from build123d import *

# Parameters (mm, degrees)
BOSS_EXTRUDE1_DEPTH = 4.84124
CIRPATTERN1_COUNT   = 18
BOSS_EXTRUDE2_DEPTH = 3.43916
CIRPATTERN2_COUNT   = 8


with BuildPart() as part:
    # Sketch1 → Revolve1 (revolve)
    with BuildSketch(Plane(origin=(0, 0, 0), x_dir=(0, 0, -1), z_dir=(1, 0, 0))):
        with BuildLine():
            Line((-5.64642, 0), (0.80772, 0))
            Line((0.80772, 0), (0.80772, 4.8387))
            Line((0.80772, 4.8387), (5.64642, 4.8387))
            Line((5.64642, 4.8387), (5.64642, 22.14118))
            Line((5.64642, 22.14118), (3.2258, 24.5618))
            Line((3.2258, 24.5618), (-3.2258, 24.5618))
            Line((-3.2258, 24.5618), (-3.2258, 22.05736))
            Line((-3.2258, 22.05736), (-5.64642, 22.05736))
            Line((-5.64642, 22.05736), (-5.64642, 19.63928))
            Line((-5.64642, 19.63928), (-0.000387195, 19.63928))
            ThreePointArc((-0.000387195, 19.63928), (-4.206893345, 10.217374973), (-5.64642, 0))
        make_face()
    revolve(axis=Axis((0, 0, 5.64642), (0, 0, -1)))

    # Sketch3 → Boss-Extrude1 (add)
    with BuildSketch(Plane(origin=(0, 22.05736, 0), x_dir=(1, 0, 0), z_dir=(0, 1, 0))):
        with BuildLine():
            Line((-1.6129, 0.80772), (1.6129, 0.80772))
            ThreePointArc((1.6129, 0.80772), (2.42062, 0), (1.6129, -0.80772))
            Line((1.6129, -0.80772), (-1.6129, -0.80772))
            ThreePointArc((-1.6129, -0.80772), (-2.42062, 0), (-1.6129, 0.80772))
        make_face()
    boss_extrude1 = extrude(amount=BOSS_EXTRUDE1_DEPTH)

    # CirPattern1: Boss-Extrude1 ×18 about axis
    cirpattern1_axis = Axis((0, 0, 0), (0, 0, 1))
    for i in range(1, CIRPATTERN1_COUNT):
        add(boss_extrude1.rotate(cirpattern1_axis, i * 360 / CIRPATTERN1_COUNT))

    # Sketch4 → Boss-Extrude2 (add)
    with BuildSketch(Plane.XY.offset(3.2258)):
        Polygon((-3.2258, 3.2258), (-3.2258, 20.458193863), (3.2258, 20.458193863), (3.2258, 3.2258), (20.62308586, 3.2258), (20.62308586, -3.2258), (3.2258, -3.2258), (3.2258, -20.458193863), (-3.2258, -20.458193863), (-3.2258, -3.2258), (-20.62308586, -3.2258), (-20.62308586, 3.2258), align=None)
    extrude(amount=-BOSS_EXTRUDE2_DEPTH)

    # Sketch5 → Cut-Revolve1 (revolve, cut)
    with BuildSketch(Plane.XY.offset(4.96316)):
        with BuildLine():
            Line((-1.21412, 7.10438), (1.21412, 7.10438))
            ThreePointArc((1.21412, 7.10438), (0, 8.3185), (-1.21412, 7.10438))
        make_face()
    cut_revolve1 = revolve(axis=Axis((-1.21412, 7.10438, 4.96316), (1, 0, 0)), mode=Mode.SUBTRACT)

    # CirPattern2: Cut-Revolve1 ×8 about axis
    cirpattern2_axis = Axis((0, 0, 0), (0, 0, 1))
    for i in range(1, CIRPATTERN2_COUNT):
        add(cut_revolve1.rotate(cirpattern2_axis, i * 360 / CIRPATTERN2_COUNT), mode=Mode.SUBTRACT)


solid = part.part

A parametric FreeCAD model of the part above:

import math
import FreeCAD as App
import Part
import Sketcher

V = App.Vector
Q = App.Units.Quantity


def add_polygon(sketch, points):
    """Adds a closed chain of lines whose ends are joined by coincident constraints."""
    first, n = sketch.GeometryCount, len(points)
    for a, b in zip(points, points[1:] + points[:1]):
        sketch.addGeometry(Part.LineSegment(App.Vector(*a, 0), App.Vector(*b, 0)), False)
    for i in range(n):
        sketch.addConstraint(Sketcher.Constraint("Coincident", first + i, 2, first + (i + 1) % n, 1))

doc = App.newDocument("Part")
body = doc.addObject("PartDesign::Body", "Body")

sketch1 = doc.addObject("Sketcher::SketchObject", "Sketch")
body.addObject(sketch1)
sketch1.AttachmentSupport = (doc.YZ_Plane, [""])
sketch1.MapMode = "FlatFace"
sketch1.addGeometry(Part.LineSegment(V(0, 5.6, 0), V(0, -0.8, 0)), False)
sketch1.addGeometry(Part.LineSegment(V(0, -0.8, 0), V(4.8, -0.8, 0)), False)
sketch1.addGeometry(Part.LineSegment(V(4.8, -0.8, 0), V(4.8, -5.6, 0)), False)
sketch1.addGeometry(Part.LineSegment(V(4.8, -5.6, 0), V(22.1, -5.6, 0)), False)
sketch1.addGeometry(Part.LineSegment(V(22.1, -5.6, 0), V(24.6, -3.2, 0)), False)
sketch1.addGeometry(Part.LineSegment(V(24.6, -3.2, 0), V(24.6, 3.2, 0)), False)
sketch1.addGeometry(Part.LineSegment(V(24.6, 3.2, 0), V(22.1, 3.2, 0)), False)
sketch1.addGeometry(Part.LineSegment(V(22.1, 3.2, 0), V(22.1, 5.6, 0)), False)
sketch1.addGeometry(Part.LineSegment(V(22.1, 5.6, 0), V(19.6, 5.6, 0)), False)
sketch1.addGeometry(Part.LineSegment(V(19.6, 5.6, 0), V(19.6, 0, 0)), False)
sketch1.addGeometry(Part.ArcOfCircle(Part.Circle(V(0, -31.3, 0), V(0, 0, 1), 37), math.radians(58), math.radians(90)), False)
sketch1.addConstraint(Sketcher.Constraint("Coincident", 0, 2, 1, 1))
sketch1.addConstraint(Sketcher.Constraint("Coincident", 1, 2, 2, 1))
sketch1.addConstraint(Sketcher.Constraint("Coincident", 2, 2, 3, 1))
sketch1.addConstraint(Sketcher.Constraint("Coincident", 3, 2, 4, 1))
sketch1.addConstraint(Sketcher.Constraint("Coincident", 4, 2, 5, 1))
sketch1.addConstraint(Sketcher.Constraint("Coincident", 5, 2, 6, 1))
sketch1.addConstraint(Sketcher.Constraint("Coincident", 6, 2, 7, 1))
sketch1.addConstraint(Sketcher.Constraint("Coincident", 7, 2, 8, 1))
sketch1.addConstraint(Sketcher.Constraint("Coincident", 8, 2, 9, 1))
sketch1.addConstraint(Sketcher.Constraint("Coincident", 9, 2, 10, 1))
sketch1.addConstraint(Sketcher.Constraint("Coincident", 10, 2, 0, 1))
sketch1.addConstraint(Sketcher.Constraint("Vertical", 0))
sketch1.addConstraint(Sketcher.Constraint("Horizontal", 1))
sketch1.addConstraint(Sketcher.Constraint("Vertical", 2))
sketch1.addConstraint(Sketcher.Constraint("Horizontal", 3))
sketch1.addConstraint(Sketcher.Constraint("Vertical", 5))
sketch1.addConstraint(Sketcher.Constraint("Horizontal", 6))
sketch1.addConstraint(Sketcher.Constraint("Vertical", 7))
sketch1.addConstraint(Sketcher.Constraint("Horizontal", 8))
sketch1.addConstraint(Sketcher.Constraint("Vertical", 9))
sketch1.addConstraint(Sketcher.Constraint("PointOnObject", 10, 3, -2))
sketch1.addConstraint(Sketcher.Constraint("PointOnObject", 0, 2, -2))
sketch1.addConstraint(Sketcher.Constraint("Horizontal", 8, 2, 10, 2))
sketch1.addConstraint(Sketcher.Constraint("Equal", 1, 2))
sketch1.addConstraint(Sketcher.Constraint("Angle", 4, Q("45 deg")))
sketch1.addConstraint(Sketcher.Constraint("Radius", 10, Q("1.4559 in")))
sketch1.addConstraint(Sketcher.Constraint("DistanceY", 5, 1, 5, 2, Q("0.254 in")))
sketch1.addConstraint(Sketcher.Constraint("DistanceX", 1, 1, 1, 2, Q("0.1905 in")))
sketch1.addConstraint(Sketcher.Constraint("DistanceX", 3, 1, 3, 2, Q("0.6812 in")))
sketch1.addConstraint(Sketcher.Constraint("DistanceX", 6, 2, 6, 1, Q("0.0986 in")))
sketch1.addConstraint(Sketcher.Constraint("DistanceX", 8, 2, 8, 1, Q("0.0952 in")))
sketch1.addConstraint(Sketcher.Constraint("DistanceY", 0, 2, 0, 1, Q("0.2541 in")))
sketch1.addConstraint(Sketcher.Constraint("DistanceY", 7, 1, 7, 2, Q("0.0953 in")))
sketch1.addConstraint(Sketcher.Constraint("DistanceY", 4, 2, -1, 1, Q("0.127 in")))
revolution = doc.addObject("PartDesign::Revolution", "Revolution")
body.addObject(revolution)
revolution.Profile = sketch1
revolution.ReferenceAxis = (sketch1, ["V_Axis"])
revolution.Angle = 360

sketch2 = doc.addObject("Sketcher::SketchObject", "Sketch001")
body.addObject(sketch2)
sketch2.AttachmentSupport = (doc.XZ_Plane, [""])
sketch2.MapMode = "FlatFace"
sketch2.AttachmentOffset = App.Placement(V(0, 0, -0.8684 * 25.4), App.Rotation())
sketch2.addGeometry(Part.LineSegment(V(1.6, -0.8, 0), V(-1.6, -0.8, 0)), False)
sketch2.addGeometry(Part.ArcOfCircle(Part.Circle(V(-1.6, 0, 0), V(0, 0, 1), 0.8), math.radians(90), math.radians(270)), False)
sketch2.addGeometry(Part.LineSegment(V(-1.6, 0.8, 0), V(1.6, 0.8, 0)), False)
sketch2.addGeometry(Part.ArcOfCircle(Part.Circle(V(1.6, 0, 0), V(0, 0, 1), 0.8), math.radians(-90), math.radians(90)), False)
sketch2.addConstraint(Sketcher.Constraint("Tangent", 0, 2, 1, 2))
sketch2.addConstraint(Sketcher.Constraint("Tangent", 1, 1, 2, 1))
sketch2.addConstraint(Sketcher.Constraint("Tangent", 2, 2, 3, 2))
sketch2.addConstraint(Sketcher.Constraint("Tangent", 3, 1, 0, 1))
sketch2.addConstraint(Sketcher.Constraint("Horizontal", 0))
sketch2.addConstraint(Sketcher.Constraint("Horizontal", 2))
sketch2.addConstraint(Sketcher.Constraint("Symmetric", 1, 3, 3, 3, -1, 1))
sketch2.addConstraint(Sketcher.Constraint("Radius", 1, Q("0.0318 in")))
sketch2.addConstraint(Sketcher.Constraint("DistanceX", 0, 2, 0, 1, Q("0.127 in")))
pad1 = doc.addObject("PartDesign::Pad", "Pad")
body.addObject(pad1)
pad1.Profile = sketch2
pad1.Length = Q("0.1906 in")
pad1.Reversed = True
doc.recompute()

polarpattern = doc.addObject("PartDesign::PolarPattern", "PolarPattern")
body.addObject(polarpattern)
polarpattern.Originals = [pad1]
polarpattern.Axis = (doc.Z_Axis, [""])
polarpattern.Angle = 360
polarpattern.Occurrences = 18
body.Tip = polarpattern

sketch3 = doc.addObject("Sketcher::SketchObject", "Sketch002")
body.addObject(sketch3)
sketch3.AttachmentSupport = (doc.XY_Plane, [""])
sketch3.MapMode = "FlatFace"
sketch3.AttachmentOffset = App.Placement(V(0, 0, 0.127 * 25.4), App.Rotation())
add_polygon(sketch3, [(-3, 20), (-3, 3), (-21, 3), (-21, -3), (-3, -3), (-3, -20), (3, -20), (3, -3), (21, -3), (21, 3), (3, 3), (3, 20)])
sketch3.addConstraint(Sketcher.Constraint("Vertical", 0))
sketch3.addConstraint(Sketcher.Constraint("Horizontal", 1))
sketch3.addConstraint(Sketcher.Constraint("Vertical", 2))
sketch3.addConstraint(Sketcher.Constraint("Horizontal", 3))
sketch3.addConstraint(Sketcher.Constraint("Vertical", 4))
sketch3.addConstraint(Sketcher.Constraint("Horizontal", 5))
sketch3.addConstraint(Sketcher.Constraint("Vertical", 6))
sketch3.addConstraint(Sketcher.Constraint("Horizontal", 7))
sketch3.addConstraint(Sketcher.Constraint("Vertical", 8))
sketch3.addConstraint(Sketcher.Constraint("Horizontal", 9))
sketch3.addConstraint(Sketcher.Constraint("Vertical", 10))
sketch3.addConstraint(Sketcher.Constraint("Horizontal", 11))
sketch3.addConstraint(Sketcher.Constraint("Symmetric", 0, 2, 6, 2, -1, 1))
sketch3.addConstraint(Sketcher.Constraint("Symmetric", 2, 2, 8, 2, -1, 1))
sketch3.addConstraint(Sketcher.Constraint("Symmetric", 4, 2, 10, 2, -1, 1))
sketch3.addConstraint(Sketcher.Constraint("Symmetric", 3, 2, 6, 2, -2))
sketch3.addConstraint(Sketcher.Constraint("Equal", 11, 2))
sketch3.addConstraint(Sketcher.Constraint("DistanceX", 5, 1, 5, 2, Q("0.254 in")))
sketch3.addConstraint(Sketcher.Constraint("DistanceX", 1, 2, 1, 1, Q("17.397286 mm")))
sketch3.addConstraint(Sketcher.Constraint("DistanceY", 0, 2, 0, 1, Q("17.232394 mm")))
pad2 = doc.addObject("PartDesign::Pad", "Pad001")
body.addObject(pad2)
pad2.Profile = sketch3
pad2.Length = Q("0.1354 in")
pad2.Reversed = True

sketch4 = doc.addObject("Sketcher::SketchObject", "Sketch003")
body.addObject(sketch4)
sketch4.AttachmentSupport = (doc.XY_Plane, [""])
sketch4.MapMode = "FlatFace"
sketch4.AttachmentOffset = App.Placement(V(0, 0, 0.1954 * 25.4), App.Rotation())
sketch4.addGeometry(Part.LineSegment(V(-1.2, 7.1, 0), V(1.2, 7.1, 0)), False)
sketch4.addGeometry(Part.ArcOfCircle(Part.Circle(V(0, 7.1, 0), V(0, 0, 1), 1.2), math.radians(0), math.radians(180)), False)
sketch4.addGeometry(Part.LineSegment(V(-1.2, 7.1, 0), V(1.2, 7.1, 0)), True)
sketch4.addConstraint(Sketcher.Constraint("Coincident", 0, 1, 1, 2))
sketch4.addConstraint(Sketcher.Constraint("Coincident", 1, 1, 0, 2))
sketch4.addConstraint(Sketcher.Constraint("Horizontal", 0))
sketch4.addConstraint(Sketcher.Constraint("Horizontal", 2))
sketch4.addConstraint(Sketcher.Constraint("Coincident", 2, 1, 0, 1))
sketch4.addConstraint(Sketcher.Constraint("PointOnObject", 1, 3, -2))
sketch4.addConstraint(Sketcher.Constraint("Horizontal", 1, 3, 0, 1))
sketch4.addConstraint(Sketcher.Constraint("Equal", 0, 2))
sketch4.addConstraint(Sketcher.Constraint("Radius", 1, Q("0.0478 in")))
sketch4.addConstraint(Sketcher.Constraint("DistanceY", -1, 1, 1, 3, Q("0.2797 in")))
groove = doc.addObject("PartDesign::Groove", "Groove")
body.addObject(groove)
groove.Profile = sketch4
groove.ReferenceAxis = (sketch4, ["Axis0"])
groove.Angle = 360
doc.recompute()

polarpattern2 = doc.addObject("PartDesign::PolarPattern", "PolarPattern001")
body.addObject(polarpattern2)
polarpattern2.Originals = [groove]
polarpattern2.Axis = (doc.Z_Axis, [""])
polarpattern2.Angle = 360
polarpattern2.Occurrences = 8
body.Tip = polarpattern2

doc.recompute()
